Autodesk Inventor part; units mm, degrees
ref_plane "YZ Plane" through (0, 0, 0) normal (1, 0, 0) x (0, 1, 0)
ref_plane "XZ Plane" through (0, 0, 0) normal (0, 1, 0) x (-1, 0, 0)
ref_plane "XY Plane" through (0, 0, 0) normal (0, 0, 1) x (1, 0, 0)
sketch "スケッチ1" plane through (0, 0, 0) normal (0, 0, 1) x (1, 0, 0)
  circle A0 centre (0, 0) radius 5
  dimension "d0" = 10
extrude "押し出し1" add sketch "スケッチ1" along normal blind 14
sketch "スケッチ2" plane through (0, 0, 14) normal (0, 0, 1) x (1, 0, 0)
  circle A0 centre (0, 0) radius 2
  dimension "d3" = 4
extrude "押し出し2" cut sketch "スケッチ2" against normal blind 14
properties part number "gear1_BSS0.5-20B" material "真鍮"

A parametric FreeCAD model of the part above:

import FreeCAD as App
import Part
import Sketcher
from FreeCAD import Vector
Q = App.Units.Quantity

doc = App.newDocument("Part")
body = doc.addObject("PartDesign::Body", "Body")

sketch1 = body.newObject("Sketcher::SketchObject", "Sketch")
sketch1.AttachmentSupport = (doc.getObject("XY_Plane"), [""])
sketch1.MapMode = "FlatFace"
sketch1.addGeometry(Part.Circle(Vector(0, 0, 0), Vector(0, 0, 1), 5), False)
sketch1.addConstraint(Sketcher.Constraint("Coincident", 0, 3, -1, 1))
sketch1.addConstraint(Sketcher.Constraint("Diameter", 0, Q("10 mm")))
pad1 = body.newObject("PartDesign::Pad", "Pad")
pad1.Profile = sketch1
pad1.Length = 14

sketch2 = body.newObject("Sketcher::SketchObject", "Sketch001")
sketch2.AttachmentSupport = (doc.getObject("XY_Plane"), [""])
sketch2.MapMode = "FlatFace"
sketch2.AttachmentOffset = App.Placement(Vector(0, 0, 14), App.Rotation())
sketch2.addGeometry(Part.Circle(Vector(0, 0, 0), Vector(0, 0, 1), 2), False)
sketch2.addConstraint(Sketcher.Constraint("Coincident", 0, 3, -1, 1))
sketch2.addConstraint(Sketcher.Constraint("Diameter", 0, Q("4 mm")))
pocket1 = body.newObject("PartDesign::Pocket", "Pocket")
pocket1.Profile = sketch2
pocket1.Length = 14

doc.recompute()
